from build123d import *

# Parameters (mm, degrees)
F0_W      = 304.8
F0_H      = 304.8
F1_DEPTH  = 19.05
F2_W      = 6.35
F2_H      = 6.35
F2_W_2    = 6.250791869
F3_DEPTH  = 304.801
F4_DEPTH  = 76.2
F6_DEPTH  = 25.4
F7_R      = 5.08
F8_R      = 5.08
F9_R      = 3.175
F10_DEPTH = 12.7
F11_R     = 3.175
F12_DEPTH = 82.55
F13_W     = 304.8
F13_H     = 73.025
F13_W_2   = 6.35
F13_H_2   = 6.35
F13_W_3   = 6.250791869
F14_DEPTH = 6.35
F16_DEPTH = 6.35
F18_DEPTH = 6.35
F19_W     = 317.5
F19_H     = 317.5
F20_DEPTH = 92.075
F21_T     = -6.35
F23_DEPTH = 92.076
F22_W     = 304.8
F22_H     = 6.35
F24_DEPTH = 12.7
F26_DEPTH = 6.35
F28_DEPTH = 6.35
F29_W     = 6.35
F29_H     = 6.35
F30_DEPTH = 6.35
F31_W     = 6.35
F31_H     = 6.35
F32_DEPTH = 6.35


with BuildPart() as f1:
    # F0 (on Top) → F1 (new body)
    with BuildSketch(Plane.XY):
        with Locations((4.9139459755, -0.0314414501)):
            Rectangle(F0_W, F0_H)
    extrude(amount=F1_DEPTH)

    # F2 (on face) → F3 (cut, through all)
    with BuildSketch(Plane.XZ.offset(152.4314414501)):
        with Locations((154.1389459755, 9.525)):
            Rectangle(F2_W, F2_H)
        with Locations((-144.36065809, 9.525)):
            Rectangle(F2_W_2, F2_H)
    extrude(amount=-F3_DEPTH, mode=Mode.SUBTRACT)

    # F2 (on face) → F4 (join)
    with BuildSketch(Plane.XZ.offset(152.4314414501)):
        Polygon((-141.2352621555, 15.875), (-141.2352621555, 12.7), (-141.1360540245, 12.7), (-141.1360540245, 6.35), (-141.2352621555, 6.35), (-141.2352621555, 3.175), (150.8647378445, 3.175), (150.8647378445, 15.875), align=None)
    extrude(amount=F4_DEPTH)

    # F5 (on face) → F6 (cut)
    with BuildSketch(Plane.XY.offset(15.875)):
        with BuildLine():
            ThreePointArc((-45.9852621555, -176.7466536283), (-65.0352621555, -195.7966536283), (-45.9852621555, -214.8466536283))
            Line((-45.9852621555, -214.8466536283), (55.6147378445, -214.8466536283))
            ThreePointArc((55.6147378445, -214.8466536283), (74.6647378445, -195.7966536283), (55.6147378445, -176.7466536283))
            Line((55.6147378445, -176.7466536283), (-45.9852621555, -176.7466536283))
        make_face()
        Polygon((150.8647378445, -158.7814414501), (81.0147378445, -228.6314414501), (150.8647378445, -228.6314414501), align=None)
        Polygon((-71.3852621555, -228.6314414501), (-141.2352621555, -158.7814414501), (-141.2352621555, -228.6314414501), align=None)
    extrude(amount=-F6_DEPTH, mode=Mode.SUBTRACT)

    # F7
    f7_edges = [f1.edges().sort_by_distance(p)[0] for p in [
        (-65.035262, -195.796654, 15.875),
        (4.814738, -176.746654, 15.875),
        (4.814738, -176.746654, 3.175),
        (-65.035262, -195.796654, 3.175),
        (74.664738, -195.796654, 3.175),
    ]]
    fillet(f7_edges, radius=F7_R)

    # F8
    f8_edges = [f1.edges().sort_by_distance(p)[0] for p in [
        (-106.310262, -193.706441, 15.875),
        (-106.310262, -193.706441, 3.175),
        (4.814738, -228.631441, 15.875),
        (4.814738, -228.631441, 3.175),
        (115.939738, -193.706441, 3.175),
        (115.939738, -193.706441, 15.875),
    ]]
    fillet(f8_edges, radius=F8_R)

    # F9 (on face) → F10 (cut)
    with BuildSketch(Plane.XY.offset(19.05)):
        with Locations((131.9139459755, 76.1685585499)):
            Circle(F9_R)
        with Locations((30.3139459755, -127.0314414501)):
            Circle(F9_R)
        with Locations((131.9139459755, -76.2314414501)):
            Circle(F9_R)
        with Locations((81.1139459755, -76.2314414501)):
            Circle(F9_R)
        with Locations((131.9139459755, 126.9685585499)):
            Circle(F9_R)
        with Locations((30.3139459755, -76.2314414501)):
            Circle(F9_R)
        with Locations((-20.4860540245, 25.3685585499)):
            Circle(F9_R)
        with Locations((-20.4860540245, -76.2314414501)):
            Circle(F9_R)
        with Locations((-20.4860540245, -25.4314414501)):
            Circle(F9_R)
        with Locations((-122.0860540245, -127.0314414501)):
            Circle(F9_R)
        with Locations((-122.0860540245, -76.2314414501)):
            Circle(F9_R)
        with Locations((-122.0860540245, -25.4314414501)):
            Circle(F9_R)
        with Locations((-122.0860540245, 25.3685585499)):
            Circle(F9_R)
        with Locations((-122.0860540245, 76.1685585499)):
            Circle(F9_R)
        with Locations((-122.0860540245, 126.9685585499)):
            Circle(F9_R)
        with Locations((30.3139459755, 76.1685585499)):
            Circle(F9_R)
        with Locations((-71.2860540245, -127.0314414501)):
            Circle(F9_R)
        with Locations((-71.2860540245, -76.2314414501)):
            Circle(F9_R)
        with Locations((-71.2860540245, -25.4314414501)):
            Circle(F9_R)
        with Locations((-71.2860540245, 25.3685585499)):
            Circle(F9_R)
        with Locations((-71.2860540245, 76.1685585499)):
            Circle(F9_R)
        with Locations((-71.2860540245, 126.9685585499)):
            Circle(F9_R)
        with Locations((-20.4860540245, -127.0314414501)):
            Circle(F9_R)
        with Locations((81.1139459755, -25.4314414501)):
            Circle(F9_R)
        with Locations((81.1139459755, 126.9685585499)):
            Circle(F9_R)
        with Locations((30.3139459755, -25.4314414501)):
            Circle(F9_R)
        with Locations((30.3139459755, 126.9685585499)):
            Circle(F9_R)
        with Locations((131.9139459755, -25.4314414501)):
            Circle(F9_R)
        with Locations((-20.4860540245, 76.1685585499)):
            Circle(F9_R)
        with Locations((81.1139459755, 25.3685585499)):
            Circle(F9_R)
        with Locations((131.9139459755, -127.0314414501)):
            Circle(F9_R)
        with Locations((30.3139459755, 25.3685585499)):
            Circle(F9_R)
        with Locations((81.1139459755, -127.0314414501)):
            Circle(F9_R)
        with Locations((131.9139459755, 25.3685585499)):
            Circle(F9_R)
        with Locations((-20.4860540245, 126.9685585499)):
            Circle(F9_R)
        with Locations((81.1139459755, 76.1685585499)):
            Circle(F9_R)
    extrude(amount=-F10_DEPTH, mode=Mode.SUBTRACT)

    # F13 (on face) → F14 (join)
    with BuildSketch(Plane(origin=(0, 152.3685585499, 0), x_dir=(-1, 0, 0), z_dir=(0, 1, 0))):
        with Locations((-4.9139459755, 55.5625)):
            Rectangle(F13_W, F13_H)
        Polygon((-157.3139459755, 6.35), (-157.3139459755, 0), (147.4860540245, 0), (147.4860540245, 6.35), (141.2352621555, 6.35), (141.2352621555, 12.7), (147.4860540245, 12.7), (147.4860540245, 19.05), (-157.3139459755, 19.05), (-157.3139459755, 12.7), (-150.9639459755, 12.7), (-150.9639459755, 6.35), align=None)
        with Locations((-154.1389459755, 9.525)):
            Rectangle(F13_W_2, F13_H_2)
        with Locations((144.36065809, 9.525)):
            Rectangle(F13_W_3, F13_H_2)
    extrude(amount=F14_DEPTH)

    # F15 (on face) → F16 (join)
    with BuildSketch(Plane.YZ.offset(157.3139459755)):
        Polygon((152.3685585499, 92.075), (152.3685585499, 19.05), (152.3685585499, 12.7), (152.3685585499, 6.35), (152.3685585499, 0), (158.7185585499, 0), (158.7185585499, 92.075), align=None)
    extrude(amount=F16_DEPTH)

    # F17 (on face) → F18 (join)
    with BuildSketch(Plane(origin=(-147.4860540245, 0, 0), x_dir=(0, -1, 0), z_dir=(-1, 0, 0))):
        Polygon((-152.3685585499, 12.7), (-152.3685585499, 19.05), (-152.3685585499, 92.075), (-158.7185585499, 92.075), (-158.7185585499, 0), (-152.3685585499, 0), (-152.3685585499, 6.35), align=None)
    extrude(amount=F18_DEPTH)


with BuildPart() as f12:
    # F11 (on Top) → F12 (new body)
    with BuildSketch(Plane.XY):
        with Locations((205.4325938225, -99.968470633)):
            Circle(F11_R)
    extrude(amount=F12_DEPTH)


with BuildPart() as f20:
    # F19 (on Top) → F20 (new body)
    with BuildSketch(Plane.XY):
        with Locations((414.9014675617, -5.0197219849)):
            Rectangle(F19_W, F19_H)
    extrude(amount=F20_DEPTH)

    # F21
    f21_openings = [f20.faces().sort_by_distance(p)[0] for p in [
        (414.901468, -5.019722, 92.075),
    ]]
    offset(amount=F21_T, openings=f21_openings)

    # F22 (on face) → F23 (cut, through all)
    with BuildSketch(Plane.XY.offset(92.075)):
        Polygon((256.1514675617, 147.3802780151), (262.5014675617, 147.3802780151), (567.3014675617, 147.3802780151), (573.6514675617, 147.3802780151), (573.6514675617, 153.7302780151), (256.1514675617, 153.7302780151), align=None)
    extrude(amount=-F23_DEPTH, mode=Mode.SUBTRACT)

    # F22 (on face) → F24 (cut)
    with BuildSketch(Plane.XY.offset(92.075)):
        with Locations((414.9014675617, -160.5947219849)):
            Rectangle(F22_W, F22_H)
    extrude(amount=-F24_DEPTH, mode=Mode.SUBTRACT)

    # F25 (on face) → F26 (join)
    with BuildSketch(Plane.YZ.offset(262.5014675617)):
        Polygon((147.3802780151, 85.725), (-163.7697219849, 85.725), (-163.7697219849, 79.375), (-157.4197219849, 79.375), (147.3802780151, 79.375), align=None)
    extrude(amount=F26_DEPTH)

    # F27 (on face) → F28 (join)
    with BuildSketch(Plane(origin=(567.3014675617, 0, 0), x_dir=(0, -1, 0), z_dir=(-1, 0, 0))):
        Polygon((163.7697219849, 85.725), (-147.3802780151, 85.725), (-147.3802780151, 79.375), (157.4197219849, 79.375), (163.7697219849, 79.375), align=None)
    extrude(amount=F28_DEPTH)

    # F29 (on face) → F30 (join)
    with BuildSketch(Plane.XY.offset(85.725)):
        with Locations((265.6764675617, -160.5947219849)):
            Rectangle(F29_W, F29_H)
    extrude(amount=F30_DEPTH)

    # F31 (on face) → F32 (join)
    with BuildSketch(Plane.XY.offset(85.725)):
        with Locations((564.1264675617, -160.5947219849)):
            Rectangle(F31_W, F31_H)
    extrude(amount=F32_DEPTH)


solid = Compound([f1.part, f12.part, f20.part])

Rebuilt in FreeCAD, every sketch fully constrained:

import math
import FreeCAD as App
import Part
import Sketcher
from FreeCAD import Vector
Q = App.Units.Quantity


def edges_at(feature, points):
    """Names of the edges that pass closest to the given points."""
    edges = feature.Shape.Edges
    near = lambda p: min(range(len(edges)), key=lambda i: edges[i].distToShape(Part.Vertex(*p))[0])
    return sorted({f"Edge{near(p) + 1}" for p in points})


def faces_at(feature, points):
    """Names of the faces that lie closest to the given points."""
    faces = feature.Shape.Faces
    near = lambda p: min(range(len(faces)), key=lambda i: faces[i].distToShape(Part.Vertex(*p))[0])
    return sorted({f"Face{near(p) + 1}" for p in points})

doc = App.newDocument("Part")
body = doc.addObject("PartDesign::Body", "Body")

sketch1 = body.newObject("Sketcher::SketchObject", "Sketch")
sketch1.AttachmentSupport = (doc.getObject("XY_Plane"), [""])
sketch1.MapMode = "FlatFace"
sketch1.addGeometry([
    Part.LineSegment(Vector(-147, 152, 0), Vector(-147, -152, 0)),
    Part.LineSegment(Vector(-147, -152, 0), Vector(157, -152, 0)),
    Part.LineSegment(Vector(157, -152, 0), Vector(157, 152, 0)),
    Part.LineSegment(Vector(157, 152, 0), Vector(-147, 152, 0)),
], False)
sketch1.addConstraint([
    Sketcher.Constraint("Coincident", 0, 2, 1, 1),
    Sketcher.Constraint("Coincident", 1, 2, 2, 1),
    Sketcher.Constraint("Coincident", 2, 2, 3, 1),
    Sketcher.Constraint("Coincident", 3, 2, 0, 1),
    Sketcher.Constraint("Vertical", 0),
    Sketcher.Constraint("Horizontal", 1),
    Sketcher.Constraint("Vertical", 2),
    Sketcher.Constraint("Horizontal", 3),
    Sketcher.Constraint("Equal", 3, 0),
    Sketcher.Constraint("DistanceX", 1, 1, 1, 2, Q("12 in")),
    Sketcher.Constraint("DistanceY", 0, 2, -1, 1, 152.431441),
    Sketcher.Constraint("DistanceX", 0, 2, -1, 1, 147.486054),
])
pad1 = body.newObject("PartDesign::Pad", "Pad")
pad1.Profile = sketch1
pad1.Length = Q("0.75 in")

sketch2 = body.newObject("Sketcher::SketchObject", "Sketch001")
sketch2.AttachmentSupport = (doc.getObject("XZ_Plane"), [""])
sketch2.MapMode = "FlatFace"
sketch2.AttachmentOffset = App.Placement(Vector(0, 0, 152.431441), App.Rotation())
sketch2.addGeometry([
    Part.LineSegment(Vector(151, 13, 0), Vector(151, 6, 0)),
    Part.LineSegment(Vector(151, 6, 0), Vector(157, 6, 0)),
    Part.LineSegment(Vector(157, 6, 0), Vector(157, 13, 0)),
    Part.LineSegment(Vector(157, 13, 0), Vector(151, 13, 0)),
    Part.LineSegment(Vector(-147, 13, 0), Vector(-147, 6, 0)),
    Part.LineSegment(Vector(-147, 6, 0), Vector(-141, 6, 0)),
    Part.LineSegment(Vector(-141, 6, 0), Vector(-141, 13, 0)),
    Part.LineSegment(Vector(-141, 13, 0), Vector(-147, 13, 0)),
], False)
sketch2.addConstraint([
    Sketcher.Constraint("Coincident", 0, 2, 1, 1),
    Sketcher.Constraint("Coincident", 1, 2, 2, 1),
    Sketcher.Constraint("Coincident", 2, 2, 3, 1),
    Sketcher.Constraint("Coincident", 3, 2, 0, 1),
    Sketcher.Constraint("Coincident", 4, 2, 5, 1),
    Sketcher.Constraint("Coincident", 5, 2, 6, 1),
    Sketcher.Constraint("Coincident", 6, 2, 7, 1),
    Sketcher.Constraint("Coincident", 7, 2, 4, 1),
    Sketcher.Constraint("Vertical", 0),
    Sketcher.Constraint("Horizontal", 1),
    Sketcher.Constraint("Vertical", 2),
    Sketcher.Constraint("Horizontal", 3),
    Sketcher.Constraint("Vertical", 4),
    Sketcher.Constraint("Horizontal", 5),
    Sketcher.Constraint("Vertical", 6),
    Sketcher.Constraint("Horizontal", 7),
    Sketcher.Constraint("Horizontal", 1, 2, 4, 2),
    Sketcher.Constraint("Horizontal", 3, 2, 6, 2),
    Sketcher.Constraint("Equal", 3, 0),
    Sketcher.Constraint("DistanceX", 4, 2, 1, 2, Q("12 in")),
    Sketcher.Constraint("DistanceX", 1, 1, 1, 2, Q("0.25 in")),
    Sketcher.Constraint("DistanceY", -1, 1, 2, 2, Q("0.5 in")),
    Sketcher.Constraint("DistanceX", 5, 1, 5, 2, 6.250792),
    Sketcher.Constraint("DistanceX", -1, 1, 0, 2, 150.963946),
])
pocket1 = body.newObject("PartDesign::Pocket", "Pocket")
pocket1.Profile = sketch2
pocket1.Type = "ThroughAll"

sketch3 = body.newObject("Sketcher::SketchObject", "Sketch002")
sketch3.AttachmentSupport = (doc.getObject("XZ_Plane"), [""])
sketch3.MapMode = "FlatFace"
sketch3.AttachmentOffset = App.Placement(Vector(0, 0, 152.431441), App.Rotation())
sketch3.addGeometry([
    Part.LineSegment(Vector(-141.24, 15.88, 0), Vector(-141.24, 12.7, 0)),
    Part.LineSegment(Vector(-141.24, 12.7, 0), Vector(-141.14, 12.7, 0)),
    Part.LineSegment(Vector(-141.14, 12.7, 0), Vector(-141.14, 6.35, 0)),
    Part.LineSegment(Vector(-141.14, 6.35, 0), Vector(-141.24, 6.35, 0)),
    Part.LineSegment(Vector(-141.24, 6.35, 0), Vector(-141.24, 3.17, 0)),
    Part.LineSegment(Vector(-141.24, 3.17, 0), Vector(150.86, 3.17, 0)),
    Part.LineSegment(Vector(150.86, 3.17, 0), Vector(150.86, 15.88, 0)),
    Part.LineSegment(Vector(150.86, 15.88, 0), Vector(-141.24, 15.88, 0)),
], False)
sketch3.addConstraint([
    Sketcher.Constraint("Coincident", 0, 2, 1, 1),
    Sketcher.Constraint("Coincident", 1, 2, 2, 1),
    Sketcher.Constraint("Coincident", 2, 2, 3, 1),
    Sketcher.Constraint("Coincident", 3, 2, 4, 1),
    Sketcher.Constraint("Coincident", 4, 2, 5, 1),
    Sketcher.Constraint("Coincident", 5, 2, 6, 1),
    Sketcher.Constraint("Coincident", 6, 2, 7, 1),
    Sketcher.Constraint("Coincident", 7, 2, 0, 1),
    Sketcher.Constraint("Vertical", 0),
    Sketcher.Constraint("Horizontal", 1),
    Sketcher.Constraint("Vertical", 2),
    Sketcher.Constraint("Horizontal", 3),
    Sketcher.Constraint("Vertical", 4),
    Sketcher.Constraint("Horizontal", 5),
    Sketcher.Constraint("Vertical", 6),
    Sketcher.Constraint("Horizontal", 7),
    Sketcher.Constraint("Vertical", 0, 2, 3, 2),
    Sketcher.Constraint("Equal", 0, 4),
    Sketcher.Constraint("DistanceX", 5, 1, 5, 2, Q("11.5 in")),
    Sketcher.Constraint("DistanceY", 6, 1, 6, 2, Q("0.5 in")),
    Sketcher.Constraint("DistanceY", 2, 2, 2, 1, Q("0.25 in")),
    Sketcher.Constraint("DistanceY", -1, 1, 0, 2, Q("0.5 in")),
    Sketcher.Constraint("DistanceX", 1, 1, 1, 2, 0.099208),
    Sketcher.Constraint("DistanceX", 0, 2, -1, 1, 141.235262),
])
pad2 = body.newObject("PartDesign::Pad", "Pad001")
pad2.Profile = sketch3
pad2.Length = Q("3 in")

sketch4 = body.newObject("Sketcher::SketchObject", "Sketch003")
sketch4.AttachmentSupport = (doc.getObject("XY_Plane"), [""])
sketch4.MapMode = "FlatFace"
sketch4.AttachmentOffset = App.Placement(Vector(0, 0, 0.625 * 25.4), App.Rotation())
sketch4.addGeometry([
    Part.ArcOfCircle(Part.Circle(Vector(-46, -196, 0), Vector(0, 0, 1), 19), math.radians(90), math.radians(270)),
    Part.LineSegment(Vector(-46, -215, 0), Vector(56, -215, 0)),
    Part.ArcOfCircle(Part.Circle(Vector(56, -196, 0), Vector(0, 0, 1), 19), math.radians(-90), math.radians(90)),
    Part.LineSegment(Vector(56, -177, 0), Vector(-46, -177, 0)),
    Part.LineSegment(Vector(151, -159, 0), Vector(81, -229, 0)),
    Part.LineSegment(Vector(81, -229, 0), Vector(151, -229, 0)),
    Part.LineSegment(Vector(151, -229, 0), Vector(151, -159, 0)),
    Part.LineSegment(Vector(-71, -229, 0), Vector(-141, -159, 0)),
    Part.LineSegment(Vector(-141, -159, 0), Vector(-141, -229, 0)),
    Part.LineSegment(Vector(-141, -229, 0), Vector(-71, -229, 0)),
], False)
sketch4.addConstraint([
    Sketcher.Constraint("Tangent", 0, 2, 1, 1),
    Sketcher.Constraint("Tangent", 1, 2, 2, 1),
    Sketcher.Constraint("Tangent", 2, 2, 3, 1),
    Sketcher.Constraint("Tangent", 3, 2, 0, 1),
    Sketcher.Constraint("Coincident", 4, 2, 5, 1),
    Sketcher.Constraint("Coincident", 5, 2, 6, 1),
    Sketcher.Constraint("Coincident", 6, 2, 4, 1),
    Sketcher.Constraint("Coincident", 7, 2, 8, 1),
    Sketcher.Constraint("Coincident", 8, 2, 9, 1),
    Sketcher.Constraint("Coincident", 9, 2, 7, 1),
    Sketcher.Constraint("Horizontal", 1),
    Sketcher.Constraint("Horizontal", 3),
    Sketcher.Constraint("Horizontal", 5),
    Sketcher.Constraint("Vertical", 6),
    Sketcher.Constraint("Vertical", 8),
    Sketcher.Constraint("Horizontal", 9),
    Sketcher.Constraint("Perpendicular", 4, 7),
    Sketcher.Constraint("Horizontal", 6, 2, 7, 2),
    Sketcher.Constraint("Horizontal", 5, 2, 8, 2),
    Sketcher.Constraint("Equal", 5, 9),
    Sketcher.Constraint("DistanceX", 1, 1, 1, 2, Q("4 in")),
    Sketcher.Constraint("Radius", 0, Q("0.75 in")),
    Sketcher.Constraint("DistanceX", 1, 2, 4, 2, Q("1 in")),
    Sketcher.Constraint("DistanceX", 9, 2, 0, 2, Q("1 in")),
    Sketcher.Constraint("DistanceX", 5, 1, 5, 2, Q("2.75 in")),
    Sketcher.Constraint("DistanceY", 4, 2, -1, 1, 228.631441),
    Sketcher.Constraint("DistanceX", 0, 3, -1, 1, 45.985262),
    Sketcher.Constraint("DistanceY", 0, 3, -1, 1, 195.796654),
])
pocket2 = body.newObject("PartDesign::Pocket", "Pocket001")
pocket2.Profile = sketch4
pocket2.Length = Q("1 in")
doc.recompute()

fillet = body.newObject("PartDesign::Fillet", "Fillet")
fillet.Base = (pocket2, edges_at(pocket2, [
    (-65.035, -195.797, 15.875),
    (4.815, -176.747, 15.875),
    (4.815, -176.747, 3.175),
    (-65.035, -195.797, 3.175),
    (74.665, -195.797, 3.175),
]))
fillet.Radius = Q("0.2 in")
doc.recompute()

fillet2 = body.newObject("PartDesign::Fillet", "Fillet001")
fillet2.Base = (fillet, edges_at(fillet, [
    (-106.31, -193.706, 15.875),
    (-106.31, -193.706, 3.175),
    (4.815, -228.631, 15.875),
    (4.815, -228.631, 3.175),
    (115.94, -193.706, 3.175),
    (115.94, -193.706, 15.875),
]))
fillet2.Radius = Q("0.2 in")

sketch5 = body.newObject("Sketcher::SketchObject", "Sketch004")
sketch5.AttachmentSupport = (doc.getObject("XY_Plane"), [""])
sketch5.MapMode = "FlatFace"
sketch5.AttachmentOffset = App.Placement(Vector(0, 0, 0.75 * 25.4), App.Rotation())
sketch5.addGeometry([
    Part.Circle(Vector(131.9, 76.2, 0), Vector(0, 0, 1), 3.2),
    Part.Circle(Vector(30.3, -127, 0), Vector(0, 0, 1), 3.2),
    Part.Circle(Vector(131.9, -76.2, 0), Vector(0, 0, 1), 3.2),
    Part.Circle(Vector(81.1, -76.2, 0), Vector(0, 0, 1), 3.2),
    Part.Circle(Vector(131.9, 127, 0), Vector(0, 0, 1), 3.2),
    Part.Circle(Vector(30.3, -76.2, 0), Vector(0, 0, 1), 3.2),
    Part.Circle(Vector(-20.5, 25.4, 0), Vector(0, 0, 1), 3.2),
    Part.Circle(Vector(-20.5, -76.2, 0), Vector(0, 0, 1), 3.2),
    Part.Circle(Vector(-20.5, -25.4, 0), Vector(0, 0, 1), 3.2),
    Part.Circle(Vector(-122.1, -127, 0), Vector(0, 0, 1), 3.2),
    Part.Circle(Vector(-122.1, -76.2, 0), Vector(0, 0, 1), 3.2),
    Part.Circle(Vector(-122.1, -25.4, 0), Vector(0, 0, 1), 3.2),
    Part.Circle(Vector(-122.1, 25.4, 0), Vector(0, 0, 1), 3.2),
    Part.Circle(Vector(-122.1, 76.2, 0), Vector(0, 0, 1), 3.2),
    Part.Circle(Vector(-122.1, 127, 0), Vector(0, 0, 1), 3.2),
    Part.Circle(Vector(30.3, 76.2, 0), Vector(0, 0, 1), 3.2),
    Part.Circle(Vector(-71.3, -127, 0), Vector(0, 0, 1), 3.2),
    Part.Circle(Vector(-71.3, -76.2, 0), Vector(0, 0, 1), 3.2),
    Part.Circle(Vector(-71.3, -25.4, 0), Vector(0, 0, 1), 3.2),
    Part.Circle(Vector(-71.3, 25.4, 0), Vector(0, 0, 1), 3.2),
    Part.Circle(Vector(-71.3, 76.2, 0), Vector(0, 0, 1), 3.2),
    Part.Circle(Vector(-71.3, 127, 0), Vector(0, 0, 1), 3.2),
    Part.Circle(Vector(-20.5, -127, 0), Vector(0, 0, 1), 3.2),
    Part.Circle(Vector(81.1, -25.4, 0), Vector(0, 0, 1), 3.2),
    Part.Circle(Vector(81.1, 127, 0), Vector(0, 0, 1), 3.2),
    Part.Circle(Vector(30.3, -25.4, 0), Vector(0, 0, 1), 3.2),
    Part.Circle(Vector(30.3, 127, 0), Vector(0, 0, 1), 3.2),
    Part.Circle(Vector(131.9, -25.4, 0), Vector(0, 0, 1), 3.2),
    Part.Circle(Vector(-20.5, 76.2, 0), Vector(0, 0, 1), 3.2),
    Part.Circle(Vector(81.1, 25.4, 0), Vector(0, 0, 1), 3.2),
    Part.Circle(Vector(131.9, -127, 0), Vector(0, 0, 1), 3.2),
    Part.Circle(Vector(30.3, 25.4, 0), Vector(0, 0, 1), 3.2),
    Part.Circle(Vector(81.1, -127, 0), Vector(0, 0, 1), 3.2),
    Part.Circle(Vector(131.9, 25.4, 0), Vector(0, 0, 1), 3.2),
    Part.Circle(Vector(-20.5, 127, 0), Vector(0, 0, 1), 3.2),
    Part.Circle(Vector(81.1, 76.2, 0), Vector(0, 0, 1), 3.2),
], False)
sketch5.addConstraint([
    Sketcher.Constraint("Equal", 0, 1),
    Sketcher.Constraint("Equal", 1, 2),
    Sketcher.Constraint("Equal", 2, 3),
    Sketcher.Constraint("Equal", 3, 4),
    Sketcher.Constraint("Equal", 4, 5),
    Sketcher.Constraint("Equal", 5, 6),
    Sketcher.Constraint("Equal", 6, 7),
    Sketcher.Constraint("Equal", 7, 8),
    Sketcher.Constraint("Equal", 8, 9),
    Sketcher.Constraint("Equal", 9, 10),
    Sketcher.Constraint("Equal", 10, 11),
    Sketcher.Constraint("Equal", 11, 12),
    Sketcher.Constraint("Equal", 12, 13),
    Sketcher.Constraint("Equal", 13, 14),
    Sketcher.Constraint("Equal", 14, 15),
    Sketcher.Constraint("Equal", 15, 16),
    Sketcher.Constraint("Equal", 16, 17),
    Sketcher.Constraint("Equal", 17, 18),
    Sketcher.Constraint("Equal", 18, 19),
    Sketcher.Constraint("Equal", 19, 20),
    Sketcher.Constraint("Equal", 20, 21),
    Sketcher.Constraint("Equal", 21, 22),
    Sketcher.Constraint("Equal", 22, 23),
    Sketcher.Constraint("Equal", 23, 24),
    Sketcher.Constraint("Equal", 24, 25),
    Sketcher.Constraint("Equal", 25, 26),
    Sketcher.Constraint("Equal", 26, 27),
    Sketcher.Constraint("Equal", 27, 28),
    Sketcher.Constraint("Equal", 28, 29),
    Sketcher.Constraint("Equal", 29, 30),
    Sketcher.Constraint("Equal", 30, 31),
    Sketcher.Constraint("Equal", 31, 32),
    Sketcher.Constraint("Equal", 32, 33),
    Sketcher.Constraint("Equal", 33, 34),
    Sketcher.Constraint("Equal", 34, 35),
    Sketcher.Constraint("Horizontal", 2, 3, 3, 3),
    Sketcher.Constraint("Horizontal", 3, 3, 5, 3),
    Sketcher.Constraint("Horizontal", 5, 3, 7, 3),
    Sketcher.Constraint("Horizontal", 1, 3, 9, 3),
    Sketcher.Constraint("Horizontal", 7, 3, 10, 3),
    Sketcher.Constraint("Horizontal", 8, 3, 11, 3),
    Sketcher.Constraint("Horizontal", 6, 3, 12, 3),
    Sketcher.Constraint("Horizontal", 0, 3, 13, 3),
    Sketcher.Constraint("Horizontal", 4, 3, 14, 3),
    Sketcher.Constraint("Horizontal", 13, 3, 15, 3),
    Sketcher.Constraint("Horizontal", 9, 3, 16, 3),
    Sketcher.Constraint("Horizontal", 10, 3, 17, 3),
    Sketcher.Constraint("Horizontal", 11, 3, 18, 3),
    Sketcher.Constraint("Horizontal", 12, 3, 19, 3),
    Sketcher.Constraint("Horizontal", 15, 3, 20, 3),
    Sketcher.Constraint("Horizontal", 14, 3, 21, 3),
    Sketcher.Constraint("Horizontal", 16, 3, 22, 3),
    Sketcher.Constraint("Horizontal", 18, 3, 23, 3),
    Sketcher.Constraint("Horizontal", 21, 3, 24, 3),
    Sketcher.Constraint("Horizontal", 23, 3, 25, 3),
    Sketcher.Constraint("Horizontal", 24, 3, 26, 3),
    Sketcher.Constraint("Horizontal", 25, 3, 27, 3),
    Sketcher.Constraint("Horizontal", 20, 3, 28, 3),
    Sketcher.Constraint("Horizontal", 19, 3, 29, 3),
    Sketcher.Constraint("Horizontal", 22, 3, 30, 3),
    Sketcher.Constraint("Horizontal", 29, 3, 31, 3),
    Sketcher.Constraint("Horizontal", 30, 3, 32, 3),
    Sketcher.Constraint("Horizontal", 31, 3, 33, 3),
    Sketcher.Constraint("Horizontal", 26, 3, 34, 3),
    Sketcher.Constraint("Horizontal", 28, 3, 35, 3),
    Sketcher.Constraint("Vertical", 0, 3, 2, 3),
    Sketcher.Constraint("Vertical", 2, 3, 4, 3),
    Sketcher.Constraint("Vertical", 1, 3, 5, 3),
    Sketcher.Constraint("Vertical", 6, 3, 7, 3),
    Sketcher.Constraint("Vertical", 7, 3, 8, 3),
    Sketcher.Constraint("Vertical", 9, 3, 10, 3),
    Sketcher.Constraint("Vertical", 10, 3, 11, 3),
    Sketcher.Constraint("Vertical", 11, 3, 12, 3),
    Sketcher.Constraint("Vertical", 12, 3, 13, 3),
    Sketcher.Constraint("Vertical", 13, 3, 14, 3),
    Sketcher.Constraint("Vertical", 5, 3, 15, 3),
    Sketcher.Constraint("Vertical", 16, 3, 17, 3),
    Sketcher.Constraint("Vertical", 17, 3, 18, 3),
    Sketcher.Constraint("Vertical", 18, 3, 19, 3),
    Sketcher.Constraint("Vertical", 19, 3, 20, 3),
    Sketcher.Constraint("Vertical", 20, 3, 21, 3),
    Sketcher.Constraint("Vertical", 8, 3, 22, 3),
    Sketcher.Constraint("Vertical", 3, 3, 23, 3),
    Sketcher.Constraint("Vertical", 23, 3, 24, 3),
    Sketcher.Constraint("Vertical", 15, 3, 25, 3),
    Sketcher.Constraint("Vertical", 25, 3, 26, 3),
    Sketcher.Constraint("Vertical", 4, 3, 27, 3),
    Sketcher.Constraint("Vertical", 22, 3, 28, 3),
    Sketcher.Constraint("Vertical", 24, 3, 29, 3),
    Sketcher.Constraint("Vertical", 27, 3, 30, 3),
    Sketcher.Constraint("Vertical", 26, 3, 31, 3),
    Sketcher.Constraint("Vertical", 29, 3, 32, 3),
    Sketcher.Constraint("Vertical", 30, 3, 33, 3),
    Sketcher.Constraint("Vertical", 28, 3, 34, 3),
    Sketcher.Constraint("Vertical", 32, 3, 35, 3),
    Sketcher.Constraint("Diameter", 0, Q("0.25 in")),
    Sketcher.Constraint("DistanceX", 1, 3, 0, 3, Q("4 in")),
    Sketcher.Constraint("DistanceY", 1, 3, 0, 3, Q("8 in")),
    Sketcher.Constraint("DistanceY", 1, 3, 2, 3, Q("2 in")),
    Sketcher.Constraint("DistanceX", 3, 3, 2, 3, Q("2 in")),
    Sketcher.Constraint("DistanceY", 0, 3, 4, 3, Q("2 in")),
    Sketcher.Constraint("DistanceX", 6, 3, 5, 3, Q("2 in")),
    Sketcher.Constraint("DistanceY", 5, 3, 6, 3, Q("4 in")),
    Sketcher.Constraint("DistanceY", 8, 3, 6, 3, Q("2 in")),
    Sketcher.Constraint("DistanceX", 9, 3, 7, 3, Q("4 in")),
    Sketcher.Constraint("DistanceX", 9, 3, 16, 3, Q("2 in")),
    Sketcher.Constraint("DistanceY", -1, 1, 0, 3, 76.168559),
    Sketcher.Constraint("DistanceX", -1, 1, 0, 3, 131.913946),
])
pocket3 = body.newObject("PartDesign::Pocket", "Pocket002")
pocket3.Profile = sketch5
pocket3.Length = Q("0.5 in")

sketch6 = body.newObject("Sketcher::SketchObject", "Sketch005")
sketch6.AttachmentSupport = (doc.getObject("XZ_Plane"), [""])
sketch6.MapMode = "FlatFace"
sketch6.AttachmentOffset = App.Placement(Vector(0, 0, -152.368559), App.Rotation())
sketch6.addGeometry([
    Part.LineSegment(Vector(157, 92, 0), Vector(157, 0, 0)),
    Part.LineSegment(Vector(157, 0, 0), Vector(-147, 0, 0)),
    Part.LineSegment(Vector(-147, 0, 0), Vector(-147, 92, 0)),
    Part.LineSegment(Vector(-147, 92, 0), Vector(157, 92, 0)),
], False)
sketch6.addConstraint([
    Sketcher.Constraint("Coincident", 0, 2, 1, 1),
    Sketcher.Constraint("Coincident", 1, 2, 2, 1),
    Sketcher.Constraint("Coincident", 2, 2, 3, 1),
    Sketcher.Constraint("Coincident", 3, 2, 0, 1),
    Sketcher.Constraint("Vertical", 0),
    Sketcher.Constraint("Horizontal", 1),
    Sketcher.Constraint("Vertical", 2),
    Sketcher.Constraint("Horizontal", 3),
    Sketcher.Constraint("PointOnObject", 0, 2, -1),
    Sketcher.Constraint("DistanceX", 1, 2, 1, 1, Q("12 in")),
    Sketcher.Constraint("DistanceY", 0, 2, 0, 1, Q("3.625 in")),
    Sketcher.Constraint("DistanceX", -1, 1, 0, 2, 157.313946),
])
pad3 = body.newObject("PartDesign::Pad", "Pad002")
pad3.Profile = sketch6
pad3.Length = Q("0.25 in")
pad3.Reversed = True

sketch7 = body.newObject("Sketcher::SketchObject", "Sketch006")
sketch7.AttachmentSupport = (doc.getObject("YZ_Plane"), [""])
sketch7.MapMode = "FlatFace"
sketch7.AttachmentOffset = App.Placement(Vector(0, 0, 157.313946), App.Rotation())
sketch7.addGeometry([
    Part.LineSegment(Vector(152, 92, 0), Vector(152, 0, 0)),
    Part.LineSegment(Vector(152, 0, 0), Vector(159, 0, 0)),
    Part.LineSegment(Vector(159, 0, 0), Vector(159, 92, 0)),
    Part.LineSegment(Vector(159, 92, 0), Vector(152, 92, 0)),
], False)
sketch7.addConstraint([
    Sketcher.Constraint("Coincident", 0, 2, 1, 1),
    Sketcher.Constraint("Coincident", 1, 2, 2, 1),
    Sketcher.Constraint("Coincident", 2, 2, 3, 1),
    Sketcher.Constraint("Coincident", 3, 2, 0, 1),
    Sketcher.Constraint("Vertical", 0),
    Sketcher.Constraint("Horizontal", 1),
    Sketcher.Constraint("Vertical", 2),
    Sketcher.Constraint("Horizontal", 3),
    Sketcher.Constraint("PointOnObject", 0, 2, -1),
    Sketcher.Constraint("DistanceX", 1, 1, 1, 2, Q("0.25 in")),
    Sketcher.Constraint("DistanceY", 0, 2, 0, 1, Q("3.625 in")),
    Sketcher.Constraint("DistanceX", -1, 1, 0, 2, 152.368559),
])
pad4 = body.newObject("PartDesign::Pad", "Pad003")
pad4.Profile = sketch7
pad4.Length = Q("0.25 in")

sketch8 = body.newObject("Sketcher::SketchObject", "Sketch007")
sketch8.AttachmentSupport = (doc.getObject("YZ_Plane"), [""])
sketch8.MapMode = "FlatFace"
sketch8.AttachmentOffset = App.Placement(Vector(0, 0, -147.486054), App.Rotation())
sketch8.addGeometry([
    Part.LineSegment(Vector(152, 92, 0), Vector(159, 92, 0)),
    Part.LineSegment(Vector(159, 92, 0), Vector(159, 0, 0)),
    Part.LineSegment(Vector(159, 0, 0), Vector(152, 0, 0)),
    Part.LineSegment(Vector(152, 0, 0), Vector(152, 92, 0)),
], False)
sketch8.addConstraint([
    Sketcher.Constraint("Coincident", 0, 2, 1, 1),
    Sketcher.Constraint("Coincident", 1, 2, 2, 1),
    Sketcher.Constraint("Coincident", 2, 2, 3, 1),
    Sketcher.Constraint("Coincident", 3, 2, 0, 1),
    Sketcher.Constraint("Horizontal", 0),
    Sketcher.Constraint("Vertical", 1),
    Sketcher.Constraint("Horizontal", 2),
    Sketcher.Constraint("Vertical", 3),
    Sketcher.Constraint("PointOnObject", 1, 2, -1),
    Sketcher.Constraint("DistanceX", 0, 1, 0, 2, Q("0.25 in")),
    Sketcher.Constraint("DistanceY", 1, 2, 1, 1, Q("3.625 in")),
    Sketcher.Constraint("DistanceX", -1, 1, 0, 2, 158.718559),
])
pad5 = body.newObject("PartDesign::Pad", "Pad004")
pad5.Profile = sketch8
pad5.Length = Q("0.25 in")
pad5.Reversed = True
body2 = doc.addObject("PartDesign::Body", "Body001")

sketch9 = body2.newObject("Sketcher::SketchObject", "Sketch008")
sketch9.AttachmentSupport = (doc.getObject("XY_Plane001"), [""])
sketch9.MapMode = "FlatFace"
sketch9.addGeometry(Part.Circle(Vector(205.4, -100, 0), Vector(0, 0, 1), 3.2), False)
sketch9.addConstraint([
    Sketcher.Constraint("Diameter", 0, Q("0.25 in")),
    Sketcher.Constraint("DistanceY", 0, 3, -1, 1, 99.968471),
    Sketcher.Constraint("DistanceX", -1, 1, 0, 3, 205.432594),
])
pad6 = body2.newObject("PartDesign::Pad", "Pad005")
pad6.Profile = sketch9
pad6.Length = Q("3.25 in")
body3 = doc.addObject("PartDesign::Body", "Body002")

sketch10 = body3.newObject("Sketcher::SketchObject", "Sketch009")
sketch10.AttachmentSupport = (doc.getObject("XY_Plane002"), [""])
sketch10.MapMode = "FlatFace"
sketch10.addGeometry([
    Part.LineSegment(Vector(256, 154, 0), Vector(256, -164, 0)),
    Part.LineSegment(Vector(256, -164, 0), Vector(574, -164, 0)),
    Part.LineSegment(Vector(574, -164, 0), Vector(574, 154, 0)),
    Part.LineSegment(Vector(574, 154, 0), Vector(256, 154, 0)),
], False)
sketch10.addConstraint([
    Sketcher.Constraint("Coincident", 0, 2, 1, 1),
    Sketcher.Constraint("Coincident", 1, 2, 2, 1),
    Sketcher.Constraint("Coincident", 2, 2, 3, 1),
    Sketcher.Constraint("Coincident", 3, 2, 0, 1),
    Sketcher.Constraint("Vertical", 0),
    Sketcher.Constraint("Horizontal", 1),
    Sketcher.Constraint("Vertical", 2),
    Sketcher.Constraint("Horizontal", 3),
    Sketcher.Constraint("Equal", 3, 0),
    Sketcher.Constraint("DistanceX", 1, 1, 1, 2, Q("12.5 in")),
    Sketcher.Constraint("DistanceY", 0, 2, -1, 1, 163.769722),
    Sketcher.Constraint("DistanceX", -1, 1, 0, 2, 256.151468),
])
pad7 = body3.newObject("PartDesign::Pad", "Pad006")
pad7.Profile = sketch10
pad7.Length = Q("3.625 in")
doc.recompute()

thickness = body3.newObject("PartDesign::Thickness", "Thickness")
thickness.Base = (pad7, faces_at(pad7, [(414.901, -5.02, 92.075)]))
thickness.Value = Q("0.25 in")
thickness.Reversed = True
thickness.Join = "Arc"

sketch11 = body3.newObject("Sketcher::SketchObject", "Sketch010")
sketch11.AttachmentSupport = (doc.getObject("XY_Plane002"), [""])
sketch11.MapMode = "FlatFace"
sketch11.AttachmentOffset = App.Placement(Vector(0, 0, 3.625 * 25.4), App.Rotation())
sketch11.addGeometry([
    Part.LineSegment(Vector(256, 147, 0), Vector(574, 147, 0)),
    Part.LineSegment(Vector(574, 147, 0), Vector(574, 154, 0)),
    Part.LineSegment(Vector(574, 154, 0), Vector(256, 154, 0)),
    Part.LineSegment(Vector(256, 154, 0), Vector(256, 147, 0)),
], False)
sketch11.addConstraint([
    Sketcher.Constraint("Coincident", 0, 2, 1, 1),
    Sketcher.Constraint("Coincident", 1, 2, 2, 1),
    Sketcher.Constraint("Coincident", 2, 2, 3, 1),
    Sketcher.Constraint("Coincident", 3, 2, 0, 1),
    Sketcher.Constraint("Horizontal", 0),
    Sketcher.Constraint("Vertical", 1),
    Sketcher.Constraint("Horizontal", 2),
    Sketcher.Constraint("Vertical", 3),
    Sketcher.Constraint("DistanceX", 0, 1, 0, 2, Q("12.5 in")),
    Sketcher.Constraint("DistanceY", 1, 1, 1, 2, Q("0.25 in")),
    Sketcher.Constraint("DistanceY", -1, 1, 0, 2, 147.380278),
    Sketcher.Constraint("DistanceX", -1, 1, 0, 2, 573.651468),
])
pocket4 = body3.newObject("PartDesign::Pocket", "Pocket003")
pocket4.Profile = sketch11
pocket4.Type = "ThroughAll"

sketch12 = body3.newObject("Sketcher::SketchObject", "Sketch011")
sketch12.AttachmentSupport = (doc.getObject("XY_Plane002"), [""])
sketch12.MapMode = "FlatFace"
sketch12.AttachmentOffset = App.Placement(Vector(0, 0, 3.625 * 25.4), App.Rotation())
sketch12.addGeometry([
    Part.LineSegment(Vector(263, -157, 0), Vector(263, -164, 0)),
    Part.LineSegment(Vector(263, -164, 0), Vector(567, -164, 0)),
    Part.LineSegment(Vector(567, -164, 0), Vector(567, -157, 0)),
    Part.LineSegment(Vector(567, -157, 0), Vector(263, -157, 0)),
], False)
sketch12.addConstraint([
    Sketcher.Constraint("Coincident", 0, 2, 1, 1),
    Sketcher.Constraint("Coincident", 1, 2, 2, 1),
    Sketcher.Constraint("Coincident", 2, 2, 3, 1),
    Sketcher.Constraint("Coincident", 3, 2, 0, 1),
    Sketcher.Constraint("Vertical", 0),
    Sketcher.Constraint("Horizontal", 1),
    Sketcher.Constraint("Vertical", 2),
    Sketcher.Constraint("Horizontal", 3),
    Sketcher.Constraint("DistanceX", 1, 1, 1, 2, Q("12 in")),
    Sketcher.Constraint("DistanceY", 0, 2, 0, 1, Q("0.25 in")),
    Sketcher.Constraint("DistanceY", 0, 2, -1, 1, 163.769722),
    Sketcher.Constraint("DistanceX", -1, 1, 0, 2, 262.501468),
])
pocket5 = body3.newObject("PartDesign::Pocket", "Pocket004")
pocket5.Profile = sketch12
pocket5.Length = Q("0.5 in")

sketch13 = body3.newObject("Sketcher::SketchObject", "Sketch012")
sketch13.AttachmentSupport = (doc.getObject("YZ_Plane002"), [""])
sketch13.MapMode = "FlatFace"
sketch13.AttachmentOffset = App.Placement(Vector(0, 0, 262.501468), App.Rotation())
sketch13.addGeometry([
    Part.LineSegment(Vector(147, 86, 0), Vector(-164, 86, 0)),
    Part.LineSegment(Vector(-164, 86, 0), Vector(-164, 79, 0)),
    Part.LineSegment(Vector(-164, 79, 0), Vector(147, 79, 0)),
    Part.LineSegment(Vector(147, 79, 0), Vector(147, 86, 0)),
], False)
sketch13.addConstraint([
    Sketcher.Constraint("Coincident", 0, 2, 1, 1),
    Sketcher.Constraint("Coincident", 1, 2, 2, 1),
    Sketcher.Constraint("Coincident", 2, 2, 3, 1),
    Sketcher.Constraint("Coincident", 3, 2, 0, 1),
    Sketcher.Constraint("Horizontal", 0),
    Sketcher.Constraint("Vertical", 1),
    Sketcher.Constraint("Horizontal", 2),
    Sketcher.Constraint("Vertical", 3),
    Sketcher.Constraint("DistanceX", 0, 2, 0, 1, Q("12.25 in")),
    Sketcher.Constraint("DistanceY", 1, 2, 1, 1, Q("0.25 in")),
    Sketcher.Constraint("DistanceY", -1, 1, 0, 2, Q("3.375 in")),
    Sketcher.Constraint("DistanceX", 0, 2, -1, 1, 163.769722),
])
pad8 = body3.newObject("PartDesign::Pad", "Pad007")
pad8.Profile = sketch13
pad8.Length = Q("0.25 in")

sketch14 = body3.newObject("Sketcher::SketchObject", "Sketch013")
sketch14.AttachmentSupport = (doc.getObject("YZ_Plane002"), [""])
sketch14.MapMode = "FlatFace"
sketch14.AttachmentOffset = App.Placement(Vector(0, 0, 567.301468), App.Rotation())
sketch14.addGeometry([
    Part.LineSegment(Vector(-164, 86, 0), Vector(147, 86, 0)),
    Part.LineSegment(Vector(147, 86, 0), Vector(147, 79, 0)),
    Part.LineSegment(Vector(147, 79, 0), Vector(-164, 79, 0)),
    Part.LineSegment(Vector(-164, 79, 0), Vector(-164, 86, 0)),
], False)
sketch14.addConstraint([
    Sketcher.Constraint("Coincident", 0, 2, 1, 1),
    Sketcher.Constraint("Coincident", 1, 2, 2, 1),
    Sketcher.Constraint("Coincident", 2, 2, 3, 1),
    Sketcher.Constraint("Coincident", 3, 2, 0, 1),
    Sketcher.Constraint("Horizontal", 0),
    Sketcher.Constraint("Vertical", 1),
    Sketcher.Constraint("Horizontal", 2),
    Sketcher.Constraint("Vertical", 3),
    Sketcher.Constraint("DistanceX", 0, 1, 0, 2, Q("12.25 in")),
    Sketcher.Constraint("DistanceY", 1, 2, 1, 1, Q("0.25 in")),
    Sketcher.Constraint("DistanceY", -1, 1, 0, 2, Q("3.375 in")),
    Sketcher.Constraint("DistanceX", -1, 1, 0, 2, 147.380278),
])
pad9 = body3.newObject("PartDesign::Pad", "Pad008")
pad9.Profile = sketch14
pad9.Length = Q("0.25 in")
pad9.Reversed = True

sketch15 = body3.newObject("Sketcher::SketchObject", "Sketch014")
sketch15.AttachmentSupport = (doc.getObject("XY_Plane002"), [""])
sketch15.MapMode = "FlatFace"
sketch15.AttachmentOffset = App.Placement(Vector(0, 0, 3.375 * 25.4), App.Rotation())
sketch15.addGeometry([
    Part.LineSegment(Vector(263, -157, 0), Vector(263, -164, 0)),
    Part.LineSegment(Vector(263, -164, 0), Vector(269, -164, 0)),
    Part.LineSegment(Vector(269, -164, 0), Vector(269, -157, 0)),
    Part.LineSegment(Vector(269, -157, 0), Vector(263, -157, 0)),
], False)
sketch15.addConstraint([
    Sketcher.Constraint("Coincident", 0, 2, 1, 1),
    Sketcher.Constraint("Coincident", 1, 2, 2, 1),
    Sketcher.Constraint("Coincident", 2, 2, 3, 1),
    Sketcher.Constraint("Coincident", 3, 2, 0, 1),
    Sketcher.Constraint("Vertical", 0),
    Sketcher.Constraint("Horizontal", 1),
    Sketcher.Constraint("Vertical", 2),
    Sketcher.Constraint("Horizontal", 3),
    Sketcher.Constraint("Equal", 3, 0),
    Sketcher.Constraint("DistanceX", 1, 1, 1, 2, Q("0.25 in")),
    Sketcher.Constraint("DistanceY", 0, 2, -1, 1, 163.769722),
    Sketcher.Constraint("DistanceX", -1, 1, 0, 2, 262.501468),
])
pad10 = body3.newObject("PartDesign::Pad", "Pad009")
pad10.Profile = sketch15
pad10.Length = Q("0.25 in")

sketch16 = body3.newObject("Sketcher::SketchObject", "Sketch015")
sketch16.AttachmentSupport = (doc.getObject("XY_Plane002"), [""])
sketch16.MapMode = "FlatFace"
sketch16.AttachmentOffset = App.Placement(Vector(0, 0, 3.375 * 25.4), App.Rotation())
sketch16.addGeometry([
    Part.LineSegment(Vector(561, -157, 0), Vector(561, -164, 0)),
    Part.LineSegment(Vector(561, -164, 0), Vector(567, -164, 0)),
    Part.LineSegment(Vector(567, -164, 0), Vector(567, -157, 0)),
    Part.LineSegment(Vector(567, -157, 0), Vector(561, -157, 0)),
], False)
sketch16.addConstraint([
    Sketcher.Constraint("Coincident", 0, 2, 1, 1),
    Sketcher.Constraint("Coincident", 1, 2, 2, 1),
    Sketcher.Constraint("Coincident", 2, 2, 3, 1),
    Sketcher.Constraint("Coincident", 3, 2, 0, 1),
    Sketcher.Constraint("Vertical", 0),
    Sketcher.Constraint("Horizontal", 1),
    Sketcher.Constraint("Vertical", 2),
    Sketcher.Constraint("Horizontal", 3),
    Sketcher.Constraint("Equal", 3, 0),
    Sketcher.Constraint("DistanceX", 1, 1, 1, 2, Q("0.25 in")),
    Sketcher.Constraint("DistanceY", 0, 2, -1, 1, 163.769722),
    Sketcher.Constraint("DistanceX", -1, 1, 0, 2, 560.951468),
])
pad11 = body3.newObject("PartDesign::Pad", "Pad010")
pad11.Profile = sketch16
pad11.Length = Q("0.25 in")

doc.recompute()
